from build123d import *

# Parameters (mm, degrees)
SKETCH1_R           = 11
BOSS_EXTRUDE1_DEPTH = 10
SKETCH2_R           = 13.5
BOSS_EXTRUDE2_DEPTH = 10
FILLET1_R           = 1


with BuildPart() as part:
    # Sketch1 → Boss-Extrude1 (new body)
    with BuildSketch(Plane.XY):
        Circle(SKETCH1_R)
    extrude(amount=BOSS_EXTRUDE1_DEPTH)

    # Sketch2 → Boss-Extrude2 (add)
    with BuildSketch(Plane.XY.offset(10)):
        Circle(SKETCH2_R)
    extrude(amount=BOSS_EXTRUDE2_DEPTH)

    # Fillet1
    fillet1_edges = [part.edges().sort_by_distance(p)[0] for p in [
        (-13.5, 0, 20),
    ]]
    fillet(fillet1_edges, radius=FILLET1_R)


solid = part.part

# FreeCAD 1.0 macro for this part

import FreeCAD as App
import Part
import Sketcher

V = App.Vector
Q = App.Units.Quantity


def edges_at(feature, points):
    """Names of the edges that pass closest to the given points."""
    edges = feature.Shape.Edges
    near = lambda p: min(range(len(edges)), key=lambda i: edges[i].distToShape(Part.Vertex(*p))[0])
    return sorted({f"Edge{near(p) + 1}" for p in points})

doc = App.newDocument("Part")
body = doc.addObject("PartDesign::Body", "Body")

sketch1 = body.newObject("Sketcher::SketchObject", "Sketch")
sketch1.AttachmentSupport = (doc.getObject("XY_Plane"), [""])
sketch1.MapMode = "FlatFace"
sketch1.addGeometry(Part.Circle(V(0, 0, 0), V(0, 0, 1), 11), False)
sketch1.addConstraint(Sketcher.Constraint("Coincident", 0, 3, -1, 1))
sketch1.addConstraint(Sketcher.Constraint("Diameter", 0, Q("22 mm")))
pad1 = body.newObject("PartDesign::Pad", "Pad")
pad1.Profile = sketch1
pad1.Length = 10

sketch2 = body.newObject("Sketcher::SketchObject", "Sketch001")
sketch2.AttachmentSupport = (doc.getObject("XY_Plane"), [""])
sketch2.MapMode = "FlatFace"
sketch2.AttachmentOffset = App.Placement(V(0, 0, 10), App.Rotation())
sketch2.addGeometry(Part.Circle(V(0, 0, 0), V(0, 0, 1), 14), False)
sketch2.addConstraint(Sketcher.Constraint("Coincident", 0, 3, -1, 1))
sketch2.addConstraint(Sketcher.Constraint("Diameter", 0, Q("27 mm")))
pad2 = body.newObject("PartDesign::Pad", "Pad001")
pad2.Profile = sketch2
pad2.Length = 10
doc.recompute()

fillet = body.newObject("PartDesign::Fillet", "Fillet")
fillet.Base = (pad2, edges_at(pad2, [(-13.5, 0, 20)]))
fillet.Radius = 1

doc.recompute()
